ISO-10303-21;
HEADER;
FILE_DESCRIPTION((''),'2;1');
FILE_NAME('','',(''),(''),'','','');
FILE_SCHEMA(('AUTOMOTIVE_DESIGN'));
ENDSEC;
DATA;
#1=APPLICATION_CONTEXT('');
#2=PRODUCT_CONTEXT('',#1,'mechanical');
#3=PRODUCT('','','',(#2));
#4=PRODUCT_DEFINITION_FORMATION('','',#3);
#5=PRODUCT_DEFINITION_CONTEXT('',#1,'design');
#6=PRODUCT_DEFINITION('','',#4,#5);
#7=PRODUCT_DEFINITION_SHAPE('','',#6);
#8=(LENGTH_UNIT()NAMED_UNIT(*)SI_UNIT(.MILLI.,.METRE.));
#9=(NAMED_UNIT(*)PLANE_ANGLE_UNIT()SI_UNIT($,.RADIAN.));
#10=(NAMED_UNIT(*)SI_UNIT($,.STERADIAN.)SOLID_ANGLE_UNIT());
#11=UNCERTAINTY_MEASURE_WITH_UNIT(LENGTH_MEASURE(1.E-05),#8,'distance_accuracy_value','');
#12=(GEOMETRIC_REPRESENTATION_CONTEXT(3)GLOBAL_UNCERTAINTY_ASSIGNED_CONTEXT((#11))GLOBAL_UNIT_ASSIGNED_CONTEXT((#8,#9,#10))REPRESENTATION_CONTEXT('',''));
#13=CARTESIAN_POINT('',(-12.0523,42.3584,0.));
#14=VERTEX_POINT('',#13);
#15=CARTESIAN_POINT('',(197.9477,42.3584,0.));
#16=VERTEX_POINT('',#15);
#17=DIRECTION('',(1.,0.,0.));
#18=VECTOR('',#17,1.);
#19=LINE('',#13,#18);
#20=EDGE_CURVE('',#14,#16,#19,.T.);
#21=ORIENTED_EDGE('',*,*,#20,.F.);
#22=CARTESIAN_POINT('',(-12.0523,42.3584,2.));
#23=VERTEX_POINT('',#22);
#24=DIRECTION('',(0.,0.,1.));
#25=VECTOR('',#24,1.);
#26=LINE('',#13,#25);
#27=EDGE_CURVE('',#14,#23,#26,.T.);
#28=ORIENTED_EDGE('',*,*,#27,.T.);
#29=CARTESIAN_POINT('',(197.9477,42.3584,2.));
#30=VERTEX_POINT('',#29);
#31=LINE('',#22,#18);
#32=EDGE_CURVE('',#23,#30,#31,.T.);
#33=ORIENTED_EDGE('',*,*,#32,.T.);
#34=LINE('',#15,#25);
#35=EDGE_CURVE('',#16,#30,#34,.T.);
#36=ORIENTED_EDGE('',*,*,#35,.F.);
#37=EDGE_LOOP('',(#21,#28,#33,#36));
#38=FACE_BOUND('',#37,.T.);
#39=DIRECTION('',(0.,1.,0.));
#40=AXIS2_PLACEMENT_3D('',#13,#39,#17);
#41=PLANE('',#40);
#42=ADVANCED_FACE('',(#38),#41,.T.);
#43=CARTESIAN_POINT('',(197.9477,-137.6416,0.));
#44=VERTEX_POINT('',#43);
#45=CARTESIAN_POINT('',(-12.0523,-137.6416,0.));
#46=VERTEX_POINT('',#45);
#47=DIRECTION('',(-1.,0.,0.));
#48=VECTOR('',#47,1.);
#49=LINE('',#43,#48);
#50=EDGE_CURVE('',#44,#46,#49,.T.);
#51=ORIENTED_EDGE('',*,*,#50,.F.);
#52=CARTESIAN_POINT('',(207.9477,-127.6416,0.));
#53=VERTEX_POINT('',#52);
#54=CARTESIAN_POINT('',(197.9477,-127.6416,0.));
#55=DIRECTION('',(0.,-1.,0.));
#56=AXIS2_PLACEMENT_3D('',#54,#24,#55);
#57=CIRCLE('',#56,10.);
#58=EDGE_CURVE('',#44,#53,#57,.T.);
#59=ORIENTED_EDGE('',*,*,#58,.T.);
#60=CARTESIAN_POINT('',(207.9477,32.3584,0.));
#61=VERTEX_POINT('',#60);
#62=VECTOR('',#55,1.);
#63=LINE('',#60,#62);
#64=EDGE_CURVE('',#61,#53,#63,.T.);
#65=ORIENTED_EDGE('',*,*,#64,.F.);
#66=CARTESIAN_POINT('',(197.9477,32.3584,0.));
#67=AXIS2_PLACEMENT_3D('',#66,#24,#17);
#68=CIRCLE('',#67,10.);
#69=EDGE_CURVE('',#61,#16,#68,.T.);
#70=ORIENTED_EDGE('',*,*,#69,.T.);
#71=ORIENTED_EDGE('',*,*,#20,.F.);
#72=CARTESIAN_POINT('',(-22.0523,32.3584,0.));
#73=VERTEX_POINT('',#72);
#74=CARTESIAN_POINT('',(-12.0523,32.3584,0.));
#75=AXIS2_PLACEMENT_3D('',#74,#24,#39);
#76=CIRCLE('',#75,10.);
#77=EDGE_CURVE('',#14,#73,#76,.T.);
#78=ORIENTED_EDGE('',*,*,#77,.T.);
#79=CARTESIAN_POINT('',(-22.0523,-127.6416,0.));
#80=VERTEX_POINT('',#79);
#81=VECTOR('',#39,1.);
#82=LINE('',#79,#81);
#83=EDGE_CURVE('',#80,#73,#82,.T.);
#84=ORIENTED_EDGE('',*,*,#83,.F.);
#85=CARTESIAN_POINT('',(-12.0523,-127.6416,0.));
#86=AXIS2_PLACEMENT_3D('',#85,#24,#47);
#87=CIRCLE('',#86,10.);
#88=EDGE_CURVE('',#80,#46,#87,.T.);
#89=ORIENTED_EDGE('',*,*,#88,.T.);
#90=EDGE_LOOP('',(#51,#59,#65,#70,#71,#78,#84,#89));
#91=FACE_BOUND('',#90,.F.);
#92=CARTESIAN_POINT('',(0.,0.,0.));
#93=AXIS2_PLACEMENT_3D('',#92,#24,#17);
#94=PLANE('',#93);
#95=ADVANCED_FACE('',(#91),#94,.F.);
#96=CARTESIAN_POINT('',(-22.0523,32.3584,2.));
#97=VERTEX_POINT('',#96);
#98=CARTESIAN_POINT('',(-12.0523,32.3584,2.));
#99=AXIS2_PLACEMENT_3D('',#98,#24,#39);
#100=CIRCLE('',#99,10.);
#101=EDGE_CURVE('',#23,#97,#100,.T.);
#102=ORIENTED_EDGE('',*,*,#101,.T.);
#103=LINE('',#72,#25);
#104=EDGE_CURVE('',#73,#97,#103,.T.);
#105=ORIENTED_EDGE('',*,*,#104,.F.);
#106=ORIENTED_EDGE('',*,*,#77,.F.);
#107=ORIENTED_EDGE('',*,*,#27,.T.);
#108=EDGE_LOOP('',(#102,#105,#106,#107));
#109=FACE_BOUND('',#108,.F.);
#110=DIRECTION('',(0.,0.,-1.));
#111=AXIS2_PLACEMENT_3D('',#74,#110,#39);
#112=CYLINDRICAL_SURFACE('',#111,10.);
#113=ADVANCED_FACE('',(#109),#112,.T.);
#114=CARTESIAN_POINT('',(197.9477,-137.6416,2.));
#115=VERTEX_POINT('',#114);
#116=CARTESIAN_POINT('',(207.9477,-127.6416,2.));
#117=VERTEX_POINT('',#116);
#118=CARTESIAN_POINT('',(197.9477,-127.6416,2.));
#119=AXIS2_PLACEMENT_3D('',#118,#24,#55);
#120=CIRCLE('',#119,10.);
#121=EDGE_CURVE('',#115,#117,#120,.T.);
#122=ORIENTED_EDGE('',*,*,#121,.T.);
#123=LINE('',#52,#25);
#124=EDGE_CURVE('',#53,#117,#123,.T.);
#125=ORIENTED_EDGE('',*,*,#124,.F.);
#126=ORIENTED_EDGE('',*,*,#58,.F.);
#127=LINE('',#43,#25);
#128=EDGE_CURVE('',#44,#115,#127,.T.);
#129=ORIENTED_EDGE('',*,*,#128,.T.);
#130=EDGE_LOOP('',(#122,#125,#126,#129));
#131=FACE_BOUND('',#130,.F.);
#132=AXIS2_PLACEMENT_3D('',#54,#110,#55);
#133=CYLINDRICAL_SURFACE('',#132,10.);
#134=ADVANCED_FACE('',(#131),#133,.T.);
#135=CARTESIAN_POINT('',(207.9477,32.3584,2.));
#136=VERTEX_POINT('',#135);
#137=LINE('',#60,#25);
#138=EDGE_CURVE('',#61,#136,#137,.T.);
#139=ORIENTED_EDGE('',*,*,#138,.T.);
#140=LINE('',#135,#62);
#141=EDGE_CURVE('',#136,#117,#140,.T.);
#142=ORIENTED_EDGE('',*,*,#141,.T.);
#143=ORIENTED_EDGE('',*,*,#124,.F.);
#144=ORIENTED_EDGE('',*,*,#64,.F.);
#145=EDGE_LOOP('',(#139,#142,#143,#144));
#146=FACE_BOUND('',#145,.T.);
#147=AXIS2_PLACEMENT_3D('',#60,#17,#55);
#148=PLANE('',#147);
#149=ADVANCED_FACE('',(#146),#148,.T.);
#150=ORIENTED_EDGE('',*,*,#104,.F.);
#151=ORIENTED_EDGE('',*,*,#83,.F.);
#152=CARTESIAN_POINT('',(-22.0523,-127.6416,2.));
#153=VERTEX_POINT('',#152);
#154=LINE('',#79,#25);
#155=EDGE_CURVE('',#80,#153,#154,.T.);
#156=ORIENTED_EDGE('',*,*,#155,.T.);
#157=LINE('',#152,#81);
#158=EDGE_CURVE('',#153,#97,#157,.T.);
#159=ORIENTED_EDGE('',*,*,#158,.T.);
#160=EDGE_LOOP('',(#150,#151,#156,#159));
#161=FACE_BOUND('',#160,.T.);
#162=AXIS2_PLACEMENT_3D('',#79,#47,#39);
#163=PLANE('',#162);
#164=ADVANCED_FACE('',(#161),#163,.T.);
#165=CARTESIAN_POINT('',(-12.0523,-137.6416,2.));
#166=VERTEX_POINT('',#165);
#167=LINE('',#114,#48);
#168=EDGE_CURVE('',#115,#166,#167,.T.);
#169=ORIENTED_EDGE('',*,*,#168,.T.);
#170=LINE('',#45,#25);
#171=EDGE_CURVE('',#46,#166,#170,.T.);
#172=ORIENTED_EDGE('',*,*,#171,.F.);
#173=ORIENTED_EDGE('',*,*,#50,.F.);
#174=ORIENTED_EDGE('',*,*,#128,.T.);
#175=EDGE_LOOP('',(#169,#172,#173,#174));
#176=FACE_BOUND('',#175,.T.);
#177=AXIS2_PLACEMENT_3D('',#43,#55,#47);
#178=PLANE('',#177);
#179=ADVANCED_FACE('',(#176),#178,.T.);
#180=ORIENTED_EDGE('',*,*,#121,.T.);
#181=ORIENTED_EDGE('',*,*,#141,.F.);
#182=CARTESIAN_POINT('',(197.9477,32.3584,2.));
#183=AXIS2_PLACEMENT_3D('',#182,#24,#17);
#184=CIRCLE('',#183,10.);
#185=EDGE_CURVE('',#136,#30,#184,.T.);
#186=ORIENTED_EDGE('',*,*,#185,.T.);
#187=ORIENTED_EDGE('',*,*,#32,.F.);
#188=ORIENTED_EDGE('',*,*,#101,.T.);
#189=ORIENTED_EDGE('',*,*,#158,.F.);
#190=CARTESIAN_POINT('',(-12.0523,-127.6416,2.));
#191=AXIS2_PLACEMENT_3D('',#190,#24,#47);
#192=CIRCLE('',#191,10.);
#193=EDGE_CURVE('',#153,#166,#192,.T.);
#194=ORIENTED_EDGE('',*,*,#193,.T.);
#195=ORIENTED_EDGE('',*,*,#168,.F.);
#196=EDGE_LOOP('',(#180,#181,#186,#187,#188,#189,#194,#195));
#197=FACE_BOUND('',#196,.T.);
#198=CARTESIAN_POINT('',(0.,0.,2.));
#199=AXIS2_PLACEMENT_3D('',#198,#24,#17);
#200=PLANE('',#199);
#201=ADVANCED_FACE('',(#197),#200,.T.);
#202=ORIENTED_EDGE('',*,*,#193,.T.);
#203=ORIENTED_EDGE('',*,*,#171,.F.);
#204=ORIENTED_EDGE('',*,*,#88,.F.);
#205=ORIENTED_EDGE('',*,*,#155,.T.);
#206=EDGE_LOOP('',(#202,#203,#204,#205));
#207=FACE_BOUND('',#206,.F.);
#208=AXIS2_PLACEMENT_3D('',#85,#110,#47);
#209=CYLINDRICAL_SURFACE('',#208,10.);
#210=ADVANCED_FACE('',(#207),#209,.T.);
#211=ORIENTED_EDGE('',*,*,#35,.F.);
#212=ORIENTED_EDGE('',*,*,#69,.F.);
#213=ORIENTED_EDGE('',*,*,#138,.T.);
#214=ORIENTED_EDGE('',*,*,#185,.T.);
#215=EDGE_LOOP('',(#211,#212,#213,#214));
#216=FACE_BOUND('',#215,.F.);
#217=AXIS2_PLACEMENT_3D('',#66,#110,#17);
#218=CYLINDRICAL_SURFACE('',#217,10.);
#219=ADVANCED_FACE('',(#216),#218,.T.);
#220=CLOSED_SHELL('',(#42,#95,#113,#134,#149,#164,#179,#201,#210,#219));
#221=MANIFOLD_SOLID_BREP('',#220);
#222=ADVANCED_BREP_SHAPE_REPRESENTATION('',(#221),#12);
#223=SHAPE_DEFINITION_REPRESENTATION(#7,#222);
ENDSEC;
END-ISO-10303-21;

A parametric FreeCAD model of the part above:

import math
import FreeCAD as App
import Part
import Sketcher
from FreeCAD import Vector

doc = App.newDocument("Part")
body = doc.addObject("PartDesign::Body", "Body")

# Sketch on XY plane
sketch1 = body.newObject("Sketcher::SketchObject", "Sketch")
sketch1.AttachmentSupport = (doc.getObject("XY_Plane"), [""])
sketch1.MapMode = "FlatFace"
sketch1.addGeometry([
    Part.LineSegment(Vector(198, 42, 0), Vector(-12, 42, 0)),  # 0
    Part.ArcOfCircle(Part.Circle(Vector(-12, 32, 0), Vector(0, 0, 1), 10), math.radians(90), math.radians(180)),  # 1
    Part.LineSegment(Vector(-22, 32, 0), Vector(-22, -128, 0)),  # 2
    Part.ArcOfCircle(Part.Circle(Vector(-12, -128, 0), Vector(0, 0, 1), 10), math.radians(180), math.radians(270)),  # 3
    Part.LineSegment(Vector(-12, -138, 0), Vector(198, -138, 0)),  # 4
    Part.ArcOfCircle(Part.Circle(Vector(198, -128, 0), Vector(0, 0, 1), 10), math.radians(-90), math.radians(0)),  # 5
    Part.LineSegment(Vector(208, -128, 0), Vector(208, 32, 0)),  # 6
    Part.ArcOfCircle(Part.Circle(Vector(198, 32, 0), Vector(0, 0, 1), 10), math.radians(0), math.radians(90)),  # 7
], False)
sketch1.addConstraint([
    Sketcher.Constraint("Tangent", 0, 2, 1, 1),
    Sketcher.Constraint("Tangent", 1, 2, 2, 1),
    Sketcher.Constraint("Tangent", 2, 2, 3, 1),
    Sketcher.Constraint("Tangent", 3, 2, 4, 1),
    Sketcher.Constraint("Tangent", 4, 2, 5, 1),
    Sketcher.Constraint("Tangent", 5, 2, 6, 1),
    Sketcher.Constraint("Tangent", 6, 2, 7, 1),
    Sketcher.Constraint("Tangent", 7, 2, 0, 1),
    Sketcher.Constraint("Horizontal", 0),
    Sketcher.Constraint("Vertical", 2),
    Sketcher.Constraint("Horizontal", 4),
    Sketcher.Constraint("Vertical", 6),
    Sketcher.Constraint("Equal", 1, 3),
    Sketcher.Constraint("Equal", 3, 5),
    Sketcher.Constraint("Equal", 5, 7),
    Sketcher.Constraint("Radius", 1, 10.0),
    Sketcher.Constraint("DistanceY", 3, 2, 0, 2, 180.0),
    Sketcher.Constraint("DistanceX", 0, 2, 0, 1, 210.0),
    Sketcher.Constraint("DistanceX", 1, 3, -1, 1, 12.0523),
    Sketcher.Constraint("DistanceY", -1, 1, 1, 3, 32.3584),
])
pad1 = body.newObject("PartDesign::Pad", "Pad")
pad1.Profile = sketch1
pad1.Length = 2

doc.recompute()
